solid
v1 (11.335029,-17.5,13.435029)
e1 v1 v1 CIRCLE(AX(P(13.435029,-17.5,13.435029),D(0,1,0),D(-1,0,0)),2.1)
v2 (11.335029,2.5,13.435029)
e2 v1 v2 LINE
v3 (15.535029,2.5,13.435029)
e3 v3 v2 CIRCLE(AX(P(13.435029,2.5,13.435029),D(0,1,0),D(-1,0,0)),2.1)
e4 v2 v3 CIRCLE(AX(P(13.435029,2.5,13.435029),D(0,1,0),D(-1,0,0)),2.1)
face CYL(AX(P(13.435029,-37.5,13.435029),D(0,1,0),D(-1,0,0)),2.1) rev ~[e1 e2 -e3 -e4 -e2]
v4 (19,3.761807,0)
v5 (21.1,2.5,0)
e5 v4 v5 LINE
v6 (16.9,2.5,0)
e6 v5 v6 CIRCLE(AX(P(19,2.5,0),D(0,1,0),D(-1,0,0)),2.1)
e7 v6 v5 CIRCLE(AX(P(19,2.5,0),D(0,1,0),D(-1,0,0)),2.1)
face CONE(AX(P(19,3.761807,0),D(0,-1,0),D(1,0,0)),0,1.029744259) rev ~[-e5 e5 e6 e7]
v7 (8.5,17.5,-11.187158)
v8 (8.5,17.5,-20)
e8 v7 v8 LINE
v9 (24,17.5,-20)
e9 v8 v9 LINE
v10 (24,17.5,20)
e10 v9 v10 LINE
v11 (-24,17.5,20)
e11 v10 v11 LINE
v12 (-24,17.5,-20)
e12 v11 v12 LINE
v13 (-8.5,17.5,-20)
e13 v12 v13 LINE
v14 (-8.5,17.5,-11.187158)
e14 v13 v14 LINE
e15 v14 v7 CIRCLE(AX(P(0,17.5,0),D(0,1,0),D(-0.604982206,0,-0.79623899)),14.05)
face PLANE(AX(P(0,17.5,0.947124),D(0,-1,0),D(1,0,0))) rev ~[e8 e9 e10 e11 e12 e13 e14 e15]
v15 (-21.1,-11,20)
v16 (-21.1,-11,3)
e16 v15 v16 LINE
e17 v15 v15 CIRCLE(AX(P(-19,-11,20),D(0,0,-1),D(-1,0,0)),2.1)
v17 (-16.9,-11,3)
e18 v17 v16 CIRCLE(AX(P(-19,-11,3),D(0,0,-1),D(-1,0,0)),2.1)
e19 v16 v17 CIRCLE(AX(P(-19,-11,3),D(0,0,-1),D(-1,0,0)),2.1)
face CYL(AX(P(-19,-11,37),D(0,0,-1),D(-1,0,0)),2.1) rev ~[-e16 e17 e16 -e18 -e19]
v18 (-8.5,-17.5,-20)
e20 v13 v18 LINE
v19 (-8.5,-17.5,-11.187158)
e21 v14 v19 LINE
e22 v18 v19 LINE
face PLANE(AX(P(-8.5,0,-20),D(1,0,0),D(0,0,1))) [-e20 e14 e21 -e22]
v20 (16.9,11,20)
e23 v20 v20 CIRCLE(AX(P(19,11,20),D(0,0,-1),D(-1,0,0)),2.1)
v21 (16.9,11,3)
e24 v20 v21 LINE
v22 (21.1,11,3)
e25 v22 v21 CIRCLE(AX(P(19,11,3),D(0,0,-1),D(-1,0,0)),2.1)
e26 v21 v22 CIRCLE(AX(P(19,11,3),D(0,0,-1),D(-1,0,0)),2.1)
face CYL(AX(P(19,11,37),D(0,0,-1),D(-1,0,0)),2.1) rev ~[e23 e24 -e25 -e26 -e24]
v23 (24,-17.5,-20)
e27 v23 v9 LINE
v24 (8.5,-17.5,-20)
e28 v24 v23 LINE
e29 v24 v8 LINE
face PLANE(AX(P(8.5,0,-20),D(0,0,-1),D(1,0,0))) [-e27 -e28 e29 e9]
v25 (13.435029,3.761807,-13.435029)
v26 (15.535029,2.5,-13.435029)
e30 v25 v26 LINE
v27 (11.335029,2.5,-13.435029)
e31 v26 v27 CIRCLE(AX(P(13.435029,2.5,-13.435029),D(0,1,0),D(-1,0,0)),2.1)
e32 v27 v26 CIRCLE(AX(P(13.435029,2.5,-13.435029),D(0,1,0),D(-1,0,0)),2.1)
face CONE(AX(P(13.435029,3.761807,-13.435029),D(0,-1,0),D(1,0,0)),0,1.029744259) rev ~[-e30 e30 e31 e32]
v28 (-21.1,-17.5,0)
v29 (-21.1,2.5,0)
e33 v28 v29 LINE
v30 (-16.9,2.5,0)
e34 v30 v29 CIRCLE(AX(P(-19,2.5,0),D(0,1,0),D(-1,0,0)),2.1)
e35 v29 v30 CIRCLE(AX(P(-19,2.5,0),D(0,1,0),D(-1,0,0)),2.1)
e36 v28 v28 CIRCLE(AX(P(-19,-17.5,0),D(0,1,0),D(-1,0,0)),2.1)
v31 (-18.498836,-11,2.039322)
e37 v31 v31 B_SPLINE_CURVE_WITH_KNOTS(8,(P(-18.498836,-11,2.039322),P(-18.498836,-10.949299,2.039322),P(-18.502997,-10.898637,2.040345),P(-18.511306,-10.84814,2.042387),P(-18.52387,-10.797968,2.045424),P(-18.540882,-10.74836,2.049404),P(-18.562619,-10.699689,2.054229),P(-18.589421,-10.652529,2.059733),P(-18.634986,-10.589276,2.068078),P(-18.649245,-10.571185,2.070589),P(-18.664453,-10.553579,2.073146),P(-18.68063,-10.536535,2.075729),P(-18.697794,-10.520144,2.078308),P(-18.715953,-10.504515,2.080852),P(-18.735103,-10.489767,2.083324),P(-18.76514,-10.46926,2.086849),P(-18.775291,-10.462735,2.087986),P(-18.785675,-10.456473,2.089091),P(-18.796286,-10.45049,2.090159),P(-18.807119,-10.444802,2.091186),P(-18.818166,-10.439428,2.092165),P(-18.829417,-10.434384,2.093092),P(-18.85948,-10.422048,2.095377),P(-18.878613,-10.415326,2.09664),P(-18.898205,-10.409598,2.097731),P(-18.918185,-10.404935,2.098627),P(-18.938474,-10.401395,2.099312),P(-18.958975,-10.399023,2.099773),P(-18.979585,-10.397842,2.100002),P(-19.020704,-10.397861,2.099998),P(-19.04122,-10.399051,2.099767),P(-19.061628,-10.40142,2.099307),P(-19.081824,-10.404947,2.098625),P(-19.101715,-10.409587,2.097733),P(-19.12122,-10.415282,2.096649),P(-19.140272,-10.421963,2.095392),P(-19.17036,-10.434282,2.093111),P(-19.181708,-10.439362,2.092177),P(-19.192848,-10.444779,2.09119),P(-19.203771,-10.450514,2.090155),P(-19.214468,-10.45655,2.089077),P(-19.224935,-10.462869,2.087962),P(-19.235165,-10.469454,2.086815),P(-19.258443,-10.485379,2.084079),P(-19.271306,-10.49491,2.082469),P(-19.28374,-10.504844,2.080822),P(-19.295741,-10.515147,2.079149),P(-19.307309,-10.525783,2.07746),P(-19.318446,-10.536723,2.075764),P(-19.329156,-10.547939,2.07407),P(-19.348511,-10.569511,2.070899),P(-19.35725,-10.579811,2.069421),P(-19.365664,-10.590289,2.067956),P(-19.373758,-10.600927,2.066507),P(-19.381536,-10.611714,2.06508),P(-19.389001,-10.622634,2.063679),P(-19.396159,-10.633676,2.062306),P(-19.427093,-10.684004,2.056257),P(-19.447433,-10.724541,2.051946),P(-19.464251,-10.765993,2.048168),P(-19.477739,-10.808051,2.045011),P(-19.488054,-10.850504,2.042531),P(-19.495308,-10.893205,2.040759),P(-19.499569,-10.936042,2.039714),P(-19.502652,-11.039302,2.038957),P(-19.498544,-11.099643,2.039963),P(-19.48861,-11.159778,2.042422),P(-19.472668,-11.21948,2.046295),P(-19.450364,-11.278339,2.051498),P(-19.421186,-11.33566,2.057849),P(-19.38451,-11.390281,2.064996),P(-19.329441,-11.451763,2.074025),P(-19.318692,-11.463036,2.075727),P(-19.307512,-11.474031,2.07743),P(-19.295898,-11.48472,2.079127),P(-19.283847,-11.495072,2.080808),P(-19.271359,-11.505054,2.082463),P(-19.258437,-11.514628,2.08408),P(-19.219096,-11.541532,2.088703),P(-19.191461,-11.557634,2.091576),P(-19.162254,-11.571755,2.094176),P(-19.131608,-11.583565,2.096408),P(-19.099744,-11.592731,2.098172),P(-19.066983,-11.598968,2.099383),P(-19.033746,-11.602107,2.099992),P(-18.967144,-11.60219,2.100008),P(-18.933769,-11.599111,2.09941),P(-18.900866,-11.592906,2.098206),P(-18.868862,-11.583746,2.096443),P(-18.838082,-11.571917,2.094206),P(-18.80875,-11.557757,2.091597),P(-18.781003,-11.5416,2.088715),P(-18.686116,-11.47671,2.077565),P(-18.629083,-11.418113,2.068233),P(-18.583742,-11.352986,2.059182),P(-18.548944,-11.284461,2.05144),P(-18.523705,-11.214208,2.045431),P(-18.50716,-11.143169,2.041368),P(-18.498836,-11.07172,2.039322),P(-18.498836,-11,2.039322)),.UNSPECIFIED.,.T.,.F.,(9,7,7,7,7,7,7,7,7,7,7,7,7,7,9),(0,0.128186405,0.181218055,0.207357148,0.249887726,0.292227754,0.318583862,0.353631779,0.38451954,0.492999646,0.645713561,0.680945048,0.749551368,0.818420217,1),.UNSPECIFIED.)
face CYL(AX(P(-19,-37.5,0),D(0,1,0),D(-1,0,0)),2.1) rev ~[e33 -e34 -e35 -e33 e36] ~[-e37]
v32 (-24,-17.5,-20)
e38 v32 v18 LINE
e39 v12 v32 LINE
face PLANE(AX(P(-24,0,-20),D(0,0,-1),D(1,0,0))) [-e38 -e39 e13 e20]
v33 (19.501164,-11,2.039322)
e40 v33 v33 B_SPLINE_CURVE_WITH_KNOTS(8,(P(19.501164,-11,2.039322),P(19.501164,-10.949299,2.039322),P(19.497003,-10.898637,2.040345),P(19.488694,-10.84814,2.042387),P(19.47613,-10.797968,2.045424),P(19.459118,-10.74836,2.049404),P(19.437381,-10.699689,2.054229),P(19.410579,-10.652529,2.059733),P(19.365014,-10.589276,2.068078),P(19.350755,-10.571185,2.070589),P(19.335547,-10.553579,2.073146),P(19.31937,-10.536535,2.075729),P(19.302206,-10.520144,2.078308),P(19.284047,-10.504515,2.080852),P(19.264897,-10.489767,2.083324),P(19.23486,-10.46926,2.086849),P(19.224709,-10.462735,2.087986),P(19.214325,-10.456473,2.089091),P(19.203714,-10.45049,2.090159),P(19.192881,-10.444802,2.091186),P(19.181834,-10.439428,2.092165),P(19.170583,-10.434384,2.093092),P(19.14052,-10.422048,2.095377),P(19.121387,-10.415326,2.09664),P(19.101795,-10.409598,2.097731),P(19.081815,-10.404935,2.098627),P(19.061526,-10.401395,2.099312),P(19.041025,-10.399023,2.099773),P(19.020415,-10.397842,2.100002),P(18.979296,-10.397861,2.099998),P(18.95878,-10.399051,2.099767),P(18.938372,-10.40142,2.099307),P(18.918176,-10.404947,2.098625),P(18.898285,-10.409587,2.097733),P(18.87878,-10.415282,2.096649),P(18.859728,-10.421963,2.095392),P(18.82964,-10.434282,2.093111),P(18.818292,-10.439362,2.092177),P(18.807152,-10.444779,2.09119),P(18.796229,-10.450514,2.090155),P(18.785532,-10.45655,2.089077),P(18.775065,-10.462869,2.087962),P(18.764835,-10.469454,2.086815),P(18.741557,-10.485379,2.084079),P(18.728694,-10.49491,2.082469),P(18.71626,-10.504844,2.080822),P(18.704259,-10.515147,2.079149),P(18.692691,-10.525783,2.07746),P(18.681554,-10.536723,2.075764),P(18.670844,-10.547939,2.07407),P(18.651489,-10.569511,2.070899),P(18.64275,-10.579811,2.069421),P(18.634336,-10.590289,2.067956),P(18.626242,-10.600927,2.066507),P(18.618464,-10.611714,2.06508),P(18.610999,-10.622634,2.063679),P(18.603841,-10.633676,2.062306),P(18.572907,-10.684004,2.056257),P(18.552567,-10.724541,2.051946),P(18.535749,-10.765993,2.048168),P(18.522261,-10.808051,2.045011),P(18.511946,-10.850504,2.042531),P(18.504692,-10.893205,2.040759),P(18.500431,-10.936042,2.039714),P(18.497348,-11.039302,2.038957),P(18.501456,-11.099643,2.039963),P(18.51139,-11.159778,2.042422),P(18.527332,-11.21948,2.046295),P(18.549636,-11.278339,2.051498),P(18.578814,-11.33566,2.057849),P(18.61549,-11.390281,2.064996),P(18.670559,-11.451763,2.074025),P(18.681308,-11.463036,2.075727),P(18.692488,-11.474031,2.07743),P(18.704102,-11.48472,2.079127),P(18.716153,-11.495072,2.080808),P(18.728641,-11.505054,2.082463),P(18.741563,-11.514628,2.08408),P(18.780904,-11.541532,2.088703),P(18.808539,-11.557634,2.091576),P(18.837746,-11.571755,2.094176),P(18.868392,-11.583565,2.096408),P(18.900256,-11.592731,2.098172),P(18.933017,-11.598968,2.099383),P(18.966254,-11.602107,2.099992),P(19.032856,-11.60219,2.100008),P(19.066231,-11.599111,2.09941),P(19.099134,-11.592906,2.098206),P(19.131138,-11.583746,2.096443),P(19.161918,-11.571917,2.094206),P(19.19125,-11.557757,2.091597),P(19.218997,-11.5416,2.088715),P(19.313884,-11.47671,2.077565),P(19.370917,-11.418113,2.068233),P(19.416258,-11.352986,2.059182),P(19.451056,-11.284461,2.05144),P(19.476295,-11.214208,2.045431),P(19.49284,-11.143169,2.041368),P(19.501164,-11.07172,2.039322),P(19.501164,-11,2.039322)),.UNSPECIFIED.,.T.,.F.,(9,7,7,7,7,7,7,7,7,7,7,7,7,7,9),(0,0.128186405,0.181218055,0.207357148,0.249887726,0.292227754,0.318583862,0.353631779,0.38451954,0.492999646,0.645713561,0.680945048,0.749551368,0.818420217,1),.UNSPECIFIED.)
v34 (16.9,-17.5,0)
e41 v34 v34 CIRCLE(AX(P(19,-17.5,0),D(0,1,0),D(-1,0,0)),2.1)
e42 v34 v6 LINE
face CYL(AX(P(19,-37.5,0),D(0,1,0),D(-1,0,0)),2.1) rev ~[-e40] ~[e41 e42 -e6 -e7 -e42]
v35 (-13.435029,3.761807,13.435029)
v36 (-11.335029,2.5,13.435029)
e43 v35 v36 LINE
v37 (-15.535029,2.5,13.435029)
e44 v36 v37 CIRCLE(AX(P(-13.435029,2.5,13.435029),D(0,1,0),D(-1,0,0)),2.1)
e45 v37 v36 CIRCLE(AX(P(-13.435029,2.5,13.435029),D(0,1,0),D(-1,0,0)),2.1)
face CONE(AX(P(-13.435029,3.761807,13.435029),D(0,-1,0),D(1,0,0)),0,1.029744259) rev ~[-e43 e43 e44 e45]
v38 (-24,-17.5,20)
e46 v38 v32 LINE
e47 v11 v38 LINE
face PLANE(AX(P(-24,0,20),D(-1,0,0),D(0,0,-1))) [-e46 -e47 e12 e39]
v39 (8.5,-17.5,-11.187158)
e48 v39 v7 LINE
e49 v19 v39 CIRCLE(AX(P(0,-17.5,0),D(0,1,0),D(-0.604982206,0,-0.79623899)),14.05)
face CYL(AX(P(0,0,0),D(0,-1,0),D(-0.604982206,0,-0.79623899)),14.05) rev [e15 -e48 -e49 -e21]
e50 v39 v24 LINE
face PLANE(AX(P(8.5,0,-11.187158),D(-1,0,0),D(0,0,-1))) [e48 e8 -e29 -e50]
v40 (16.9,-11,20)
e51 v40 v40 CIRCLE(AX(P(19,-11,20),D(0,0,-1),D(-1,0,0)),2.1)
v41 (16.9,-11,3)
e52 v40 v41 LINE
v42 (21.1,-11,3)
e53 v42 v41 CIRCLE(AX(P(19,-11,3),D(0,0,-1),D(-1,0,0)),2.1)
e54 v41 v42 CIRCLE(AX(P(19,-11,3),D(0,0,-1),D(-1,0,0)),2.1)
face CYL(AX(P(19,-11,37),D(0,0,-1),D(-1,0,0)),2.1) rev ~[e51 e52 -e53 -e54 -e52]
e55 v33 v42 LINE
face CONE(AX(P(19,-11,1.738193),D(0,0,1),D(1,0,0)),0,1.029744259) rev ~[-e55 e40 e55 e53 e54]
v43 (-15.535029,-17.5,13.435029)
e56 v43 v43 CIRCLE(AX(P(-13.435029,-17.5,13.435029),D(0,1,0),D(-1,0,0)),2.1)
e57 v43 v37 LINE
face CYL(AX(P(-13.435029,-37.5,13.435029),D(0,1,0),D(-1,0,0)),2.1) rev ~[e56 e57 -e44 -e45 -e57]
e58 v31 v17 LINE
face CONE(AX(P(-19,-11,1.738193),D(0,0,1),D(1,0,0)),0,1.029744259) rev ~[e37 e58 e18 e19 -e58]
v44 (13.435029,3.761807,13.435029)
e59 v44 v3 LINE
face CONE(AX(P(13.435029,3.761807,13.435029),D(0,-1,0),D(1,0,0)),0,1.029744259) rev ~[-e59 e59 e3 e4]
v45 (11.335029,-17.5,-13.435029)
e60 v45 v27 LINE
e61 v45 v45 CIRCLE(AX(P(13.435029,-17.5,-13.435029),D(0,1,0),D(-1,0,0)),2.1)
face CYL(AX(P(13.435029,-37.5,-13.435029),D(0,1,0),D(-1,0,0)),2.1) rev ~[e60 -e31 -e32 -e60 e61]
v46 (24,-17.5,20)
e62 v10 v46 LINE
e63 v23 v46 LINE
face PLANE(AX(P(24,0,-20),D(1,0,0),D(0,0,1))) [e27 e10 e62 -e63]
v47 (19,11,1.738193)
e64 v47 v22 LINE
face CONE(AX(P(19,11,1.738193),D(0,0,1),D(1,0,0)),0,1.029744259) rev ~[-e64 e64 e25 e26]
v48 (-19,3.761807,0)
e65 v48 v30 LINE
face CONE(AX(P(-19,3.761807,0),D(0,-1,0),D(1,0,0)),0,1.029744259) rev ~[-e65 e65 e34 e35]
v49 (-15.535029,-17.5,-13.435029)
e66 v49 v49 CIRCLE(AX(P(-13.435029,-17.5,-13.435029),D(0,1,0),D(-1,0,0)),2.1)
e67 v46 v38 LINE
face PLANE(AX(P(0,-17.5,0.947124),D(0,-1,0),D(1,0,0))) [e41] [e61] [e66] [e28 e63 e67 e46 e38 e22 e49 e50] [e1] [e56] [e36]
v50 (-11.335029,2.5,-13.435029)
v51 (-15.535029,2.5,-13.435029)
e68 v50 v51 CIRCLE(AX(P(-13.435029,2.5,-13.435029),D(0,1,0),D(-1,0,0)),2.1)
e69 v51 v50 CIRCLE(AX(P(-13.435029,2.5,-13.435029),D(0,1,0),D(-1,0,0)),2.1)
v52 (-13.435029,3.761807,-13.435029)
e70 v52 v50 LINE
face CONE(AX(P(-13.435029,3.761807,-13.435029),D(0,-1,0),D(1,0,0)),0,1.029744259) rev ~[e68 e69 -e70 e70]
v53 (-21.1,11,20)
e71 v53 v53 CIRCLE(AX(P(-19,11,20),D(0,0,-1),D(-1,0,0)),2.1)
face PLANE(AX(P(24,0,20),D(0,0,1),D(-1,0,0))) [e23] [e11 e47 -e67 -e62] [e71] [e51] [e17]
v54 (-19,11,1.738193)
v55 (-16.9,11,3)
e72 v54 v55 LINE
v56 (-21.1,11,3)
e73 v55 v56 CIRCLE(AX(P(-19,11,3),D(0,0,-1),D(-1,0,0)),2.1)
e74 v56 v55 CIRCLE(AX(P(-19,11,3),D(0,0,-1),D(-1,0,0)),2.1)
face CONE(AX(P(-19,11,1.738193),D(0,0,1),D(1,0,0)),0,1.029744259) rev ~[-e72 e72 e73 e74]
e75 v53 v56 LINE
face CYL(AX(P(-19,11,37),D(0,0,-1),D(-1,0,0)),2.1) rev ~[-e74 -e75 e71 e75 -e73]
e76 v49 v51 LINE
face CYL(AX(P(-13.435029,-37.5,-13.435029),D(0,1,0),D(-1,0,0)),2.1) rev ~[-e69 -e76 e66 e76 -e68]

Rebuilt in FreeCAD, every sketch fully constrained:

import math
import FreeCAD as App
import Part
import Sketcher
Q = App.Units.Quantity

doc = App.newDocument("Part")
body = doc.addObject("PartDesign::Body", "Body")

# Sketch on XZ plane
sketch1 = body.newObject("Sketcher::SketchObject", "Sketch")
sketch1.AttachmentSupport = (doc.getObject("XZ_Plane"), [""])
sketch1.MapMode = "FlatFace"
sketch1.addGeometry(Part.LineSegment(App.Vector(24, -20, 0), App.Vector(24, 20, 0)), False)
sketch1.addGeometry(Part.LineSegment(App.Vector(24, 20, 0), App.Vector(-24, 20, 0)), False)
sketch1.addGeometry(Part.LineSegment(App.Vector(-24, 20, 0), App.Vector(-24, -20, 0)), False)
sketch1.addGeometry(Part.LineSegment(App.Vector(-24, -20, 0), App.Vector(-8, -20, 0)), False)
sketch1.addGeometry(Part.LineSegment(App.Vector(-8, -20, 0), App.Vector(-8, -11, 0)), False)
sketch1.addGeometry(Part.ArcOfCircle(Part.Circle(App.Vector(0, 0, 0), App.Vector(0, 0, 1), 14), math.radians(-53), math.radians(233)), False)
sketch1.addGeometry(Part.LineSegment(App.Vector(8, -11, 0), App.Vector(8, -20, 0)), False)
sketch1.addGeometry(Part.LineSegment(App.Vector(8, -20, 0), App.Vector(24, -20, 0)), False)
sketch1.addConstraint(Sketcher.Constraint("Coincident", 0, 2, 1, 1))
sketch1.addConstraint(Sketcher.Constraint("Coincident", 1, 2, 2, 1))
sketch1.addConstraint(Sketcher.Constraint("Coincident", 2, 2, 3, 1))
sketch1.addConstraint(Sketcher.Constraint("Coincident", 3, 2, 4, 1))
sketch1.addConstraint(Sketcher.Constraint("Coincident", 4, 2, 5, 2))
sketch1.addConstraint(Sketcher.Constraint("Coincident", 5, 1, 6, 1))
sketch1.addConstraint(Sketcher.Constraint("Coincident", 6, 2, 7, 1))
sketch1.addConstraint(Sketcher.Constraint("Coincident", 7, 2, 0, 1))
sketch1.addConstraint(Sketcher.Constraint("Vertical", 0))
sketch1.addConstraint(Sketcher.Constraint("Horizontal", 1))
sketch1.addConstraint(Sketcher.Constraint("Vertical", 2))
sketch1.addConstraint(Sketcher.Constraint("Horizontal", 3))
sketch1.addConstraint(Sketcher.Constraint("Vertical", 4))
sketch1.addConstraint(Sketcher.Constraint("Vertical", 6))
sketch1.addConstraint(Sketcher.Constraint("Horizontal", 7))
sketch1.addConstraint(Sketcher.Constraint("Coincident", 5, 3, -1, 1))
sketch1.addConstraint(Sketcher.Constraint("Symmetric", 0, 2, 2, 2, -1, 1))
sketch1.addConstraint(Sketcher.Constraint("Symmetric", 3, 2, 6, 2, -2))
sketch1.addConstraint(Sketcher.Constraint("DistanceX", 1, 2, 1, 1, Q("48 mm")))
sketch1.addConstraint(Sketcher.Constraint("DistanceY", 0, 1, 0, 2, Q("40 mm")))
sketch1.addConstraint(Sketcher.Constraint("Radius", 5, Q("14.05 mm")))
sketch1.addConstraint(Sketcher.Constraint("DistanceX", 3, 1, 3, 2, Q("15.5 mm")))
pad1 = body.newObject("PartDesign::Pad", "Pad")
pad1.Profile = sketch1
pad1.Length = 35
pad1.Midplane = True

# Sketch on XZ plane
sketch2 = body.newObject("Sketcher::SketchObject", "Sketch001")
sketch2.AttachmentSupport = (doc.getObject("XZ_Plane"), [""])
sketch2.MapMode = "FlatFace"
sketch2.AttachmentOffset = App.Placement(App.Vector(0, 0, 17.5), App.Rotation())
sketch2.addGeometry(Part.Circle(App.Vector(-13.4, 13.4, 0), App.Vector(0, 0, 1), 2.1), False)
sketch2.addGeometry(Part.Circle(App.Vector(-19, 0, 0), App.Vector(0, 0, 1), 2.1), False)
sketch2.addGeometry(Part.Circle(App.Vector(-13.4, -13.4, 0), App.Vector(0, 0, 1), 2.1), False)
sketch2.addGeometry(Part.Circle(App.Vector(13.4, -13.4, 0), App.Vector(0, 0, 1), 2.1), False)
sketch2.addGeometry(Part.Circle(App.Vector(19, 0, 0), App.Vector(0, 0, 1), 2.1), False)
sketch2.addGeometry(Part.Circle(App.Vector(13.4, 13.4, 0), App.Vector(0, 0, 1), 2.1), False)
sketch2.addConstraint(Sketcher.Constraint("Equal", 0, 1))
sketch2.addConstraint(Sketcher.Constraint("Equal", 1, 2))
sketch2.addConstraint(Sketcher.Constraint("Equal", 2, 3))
sketch2.addConstraint(Sketcher.Constraint("Equal", 3, 4))
sketch2.addConstraint(Sketcher.Constraint("Equal", 4, 5))
sketch2.addConstraint(Sketcher.Constraint("Symmetric", 0, 3, 3, 3, -1, 1))
sketch2.addConstraint(Sketcher.Constraint("Symmetric", 1, 3, 4, 3, -1, 1))
sketch2.addConstraint(Sketcher.Constraint("Symmetric", 2, 3, 5, 3, -1, 1))
sketch2.addConstraint(Sketcher.Constraint("Symmetric", 2, 3, 3, 3, -2))
sketch2.addConstraint(Sketcher.Constraint("PointOnObject", 1, 3, -1))
sketch2.addConstraint(Sketcher.Constraint("Diameter", 0, Q("4.2 mm")))
sketch2.addConstraint(Sketcher.Constraint("DistanceX", 1, 3, -1, 1, Q("19 mm")))
sketch2.addConstraint(Sketcher.Constraint("DistanceX", 0, 3, -1, 1, Q("13.435029 mm")))
sketch2.addConstraint(Sketcher.Constraint("DistanceY", -1, 1, 0, 3, Q("13.435029 mm")))
doc.recompute()
hole = body.newObject("PartDesign::Hole", "Hole")
hole.Profile = sketch2
hole.ThreadType = "None"
hole.Diameter = 4.2
hole.DepthType = "Dimension"
hole.Depth = 20
hole.DrillPoint = "Angled"
hole.DrillPointAngle = 118

# Sketch on XY plane
sketch3 = body.newObject("Sketcher::SketchObject", "Sketch002")
sketch3.AttachmentSupport = (doc.getObject("XY_Plane"), [""])
sketch3.MapMode = "FlatFace"
sketch3.AttachmentOffset = App.Placement(App.Vector(0, 0, 20), App.Rotation())
sketch3.addGeometry(Part.Circle(App.Vector(-19, 11, 0), App.Vector(0, 0, 1), 2.1), False)
sketch3.addGeometry(Part.Circle(App.Vector(-19, -11, 0), App.Vector(0, 0, 1), 2.1), False)
sketch3.addGeometry(Part.Circle(App.Vector(19, -11, 0), App.Vector(0, 0, 1), 2.1), False)
sketch3.addGeometry(Part.Circle(App.Vector(19, 11, 0), App.Vector(0, 0, 1), 2.1), False)
sketch3.addConstraint(Sketcher.Constraint("Equal", 0, 1))
sketch3.addConstraint(Sketcher.Constraint("Equal", 1, 2))
sketch3.addConstraint(Sketcher.Constraint("Equal", 2, 3))
sketch3.addConstraint(Sketcher.Constraint("Symmetric", 0, 3, 2, 3, -1, 1))
sketch3.addConstraint(Sketcher.Constraint("Symmetric", 1, 3, 3, 3, -1, 1))
sketch3.addConstraint(Sketcher.Constraint("Symmetric", 1, 3, 2, 3, -2))
sketch3.addConstraint(Sketcher.Constraint("Diameter", 0, Q("4.2 mm")))
sketch3.addConstraint(Sketcher.Constraint("DistanceX", 0, 3, -1, 1, Q("19 mm")))
sketch3.addConstraint(Sketcher.Constraint("DistanceY", -1, 1, 0, 3, Q("11 mm")))
doc.recompute()
hole2 = body.newObject("PartDesign::Hole", "Hole001")
hole2.Profile = sketch3
hole2.ThreadType = "None"
hole2.Diameter = 4.2
hole2.DepthType = "Dimension"
hole2.Depth = 17
hole2.DrillPoint = "Angled"
hole2.DrillPointAngle = 118

doc.recompute()
